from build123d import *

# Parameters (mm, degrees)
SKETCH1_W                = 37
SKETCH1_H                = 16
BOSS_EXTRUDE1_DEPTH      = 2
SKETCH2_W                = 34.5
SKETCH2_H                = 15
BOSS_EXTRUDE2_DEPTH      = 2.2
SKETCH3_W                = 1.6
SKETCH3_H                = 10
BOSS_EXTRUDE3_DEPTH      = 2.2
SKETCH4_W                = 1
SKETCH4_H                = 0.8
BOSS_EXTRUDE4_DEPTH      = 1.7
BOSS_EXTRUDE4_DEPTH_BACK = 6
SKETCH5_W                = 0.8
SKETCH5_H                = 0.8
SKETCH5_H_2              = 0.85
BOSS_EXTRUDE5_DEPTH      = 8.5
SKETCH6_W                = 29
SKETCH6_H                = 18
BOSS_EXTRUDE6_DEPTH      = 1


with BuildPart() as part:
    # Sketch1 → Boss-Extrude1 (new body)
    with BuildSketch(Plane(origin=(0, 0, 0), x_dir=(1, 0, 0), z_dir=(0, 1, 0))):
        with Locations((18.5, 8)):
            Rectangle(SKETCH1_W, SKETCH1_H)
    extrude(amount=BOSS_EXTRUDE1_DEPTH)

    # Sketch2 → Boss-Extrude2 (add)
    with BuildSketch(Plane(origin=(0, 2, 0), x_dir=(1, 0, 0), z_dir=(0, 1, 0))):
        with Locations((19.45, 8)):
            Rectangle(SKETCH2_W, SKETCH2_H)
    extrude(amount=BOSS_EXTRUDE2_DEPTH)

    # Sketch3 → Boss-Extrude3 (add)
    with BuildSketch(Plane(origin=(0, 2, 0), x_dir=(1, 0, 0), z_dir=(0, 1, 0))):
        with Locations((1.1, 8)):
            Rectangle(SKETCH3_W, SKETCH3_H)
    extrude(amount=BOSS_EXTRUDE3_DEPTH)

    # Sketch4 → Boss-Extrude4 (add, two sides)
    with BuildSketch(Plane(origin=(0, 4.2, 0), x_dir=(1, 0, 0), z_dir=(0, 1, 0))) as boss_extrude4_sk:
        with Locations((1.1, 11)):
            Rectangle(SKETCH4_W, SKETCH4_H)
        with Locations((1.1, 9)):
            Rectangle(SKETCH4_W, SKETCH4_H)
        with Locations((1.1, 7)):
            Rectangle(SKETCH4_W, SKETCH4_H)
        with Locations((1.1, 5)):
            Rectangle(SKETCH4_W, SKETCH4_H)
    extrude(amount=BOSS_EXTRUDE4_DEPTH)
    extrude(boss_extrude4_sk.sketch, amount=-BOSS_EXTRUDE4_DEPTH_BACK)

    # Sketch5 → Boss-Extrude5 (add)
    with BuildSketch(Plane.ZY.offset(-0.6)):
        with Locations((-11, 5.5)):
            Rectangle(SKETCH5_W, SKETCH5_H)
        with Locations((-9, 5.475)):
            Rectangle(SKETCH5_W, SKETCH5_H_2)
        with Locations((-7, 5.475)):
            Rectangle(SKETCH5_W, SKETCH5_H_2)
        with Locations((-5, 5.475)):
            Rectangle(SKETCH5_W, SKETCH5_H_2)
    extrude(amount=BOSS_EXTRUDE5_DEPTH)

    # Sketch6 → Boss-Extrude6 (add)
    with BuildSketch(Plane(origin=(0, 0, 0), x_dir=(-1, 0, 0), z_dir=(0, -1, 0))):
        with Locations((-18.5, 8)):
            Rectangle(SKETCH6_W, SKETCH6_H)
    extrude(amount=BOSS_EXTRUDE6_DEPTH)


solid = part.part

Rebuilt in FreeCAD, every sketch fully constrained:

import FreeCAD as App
import Part
import Sketcher


def add_polygon(sketch, points):
    """Adds a closed chain of lines whose ends are joined by coincident constraints."""
    first, n = sketch.GeometryCount, len(points)
    for a, b in zip(points, points[1:] + points[:1]):
        sketch.addGeometry(Part.LineSegment(App.Vector(*a, 0), App.Vector(*b, 0)), False)
    for i in range(n):
        sketch.addConstraint(Sketcher.Constraint("Coincident", first + i, 2, first + (i + 1) % n, 1))

doc = App.newDocument("Part")
body = doc.addObject("PartDesign::Body", "Body")

# Sketch on XZ plane
sketch1 = body.newObject("Sketcher::SketchObject", "Sketch")
sketch1.AttachmentSupport = (doc.getObject("XZ_Plane"), [""])
sketch1.MapMode = "FlatFace"
add_polygon(sketch1, [(0, -16), (0, 0), (37, 0), (37, -16)])  # lines 0-3
sketch1.addConstraint([
    Sketcher.Constraint("Vertical", 0),
    Sketcher.Constraint("Horizontal", 1),
    Sketcher.Constraint("Vertical", 2),
    Sketcher.Constraint("Horizontal", 3),
    Sketcher.Constraint("Coincident", 0, 2, -1, 1),
    Sketcher.Constraint("DistanceX", 1, 1, 1, 2, 37.0),
    Sketcher.Constraint("DistanceY", 0, 1, 0, 2, 16.0),
])
pad1 = body.newObject("PartDesign::Pad", "Pad")
pad1.Profile = sketch1
pad1.Length = 2
pad1.Reversed = True

# Sketch on XZ plane
sketch2 = body.newObject("Sketcher::SketchObject", "Sketch001")
sketch2.AttachmentSupport = (doc.getObject("XZ_Plane"), [""])
sketch2.MapMode = "FlatFace"
sketch2.AttachmentOffset = App.Placement(App.Vector(0, 0, -2), App.Rotation())
add_polygon(sketch2, [(2, -16), (2, 0), (37, 0), (37, -16)])  # lines 0-3
sketch2.addConstraint([
    Sketcher.Constraint("Vertical", 0),
    Sketcher.Constraint("Horizontal", 1),
    Sketcher.Constraint("Vertical", 2),
    Sketcher.Constraint("Horizontal", 3),
    Sketcher.Constraint("DistanceY", 0, 1, 0, 2, 15.0),
    Sketcher.Constraint("DistanceX", 1, 1, 1, 2, 34.5),
    Sketcher.Constraint("DistanceX", -1, 1, 0, 2, 2.2),
    Sketcher.Constraint("DistanceY", 0, 2, -1, 1, 0.5),
])
pad2 = body.newObject("PartDesign::Pad", "Pad001")
pad2.Profile = sketch2
pad2.Length = 2.2
pad2.Reversed = True

# Sketch on XZ plane
sketch3 = body.newObject("Sketcher::SketchObject", "Sketch002")
sketch3.AttachmentSupport = (doc.getObject("XZ_Plane"), [""])
sketch3.MapMode = "FlatFace"
sketch3.AttachmentOffset = App.Placement(App.Vector(0, 0, -2), App.Rotation())
add_polygon(sketch3, [(0.3, -13), (0.3, -3), (1.9, -3), (1.9, -13)])  # lines 0-3
sketch3.addConstraint([
    Sketcher.Constraint("Vertical", 0),
    Sketcher.Constraint("Horizontal", 1),
    Sketcher.Constraint("Vertical", 2),
    Sketcher.Constraint("Horizontal", 3),
    Sketcher.Constraint("DistanceY", 0, 1, 0, 2, 10.0),
    Sketcher.Constraint("DistanceX", 1, 1, 1, 2, 1.6),
    Sketcher.Constraint("DistanceY", 0, 2, -1, 1, 3.0),
    Sketcher.Constraint("DistanceX", -1, 1, 0, 2, 0.3),
])
pad3 = body.newObject("PartDesign::Pad", "Pad002")
pad3.Profile = sketch3
pad3.Length = 2.2
pad3.Reversed = True

# Sketch on XZ plane
sketch4 = body.newObject("Sketcher::SketchObject", "Sketch003")
sketch4.AttachmentSupport = (doc.getObject("XZ_Plane"), [""])
sketch4.MapMode = "FlatFace"
sketch4.AttachmentOffset = App.Placement(App.Vector(0, 0, -4.2), App.Rotation())
add_polygon(sketch4, [(0.6, -11.4), (0.6, -10.6), (1.6, -10.6), (1.6, -11.4)])  # lines 0-3
add_polygon(sketch4, [(0.6, -9.4), (0.6, -8.6), (1.6, -8.6), (1.6, -9.4)])  # lines 4-7
add_polygon(sketch4, [(0.6, -7.4), (0.6, -6.6), (1.6, -6.6), (1.6, -7.4)])  # lines 8-11
add_polygon(sketch4, [(0.6, -5.4), (0.6, -4.6), (1.6, -4.6), (1.6, -5.4)])  # lines 12-15
sketch4.addConstraint([
    Sketcher.Constraint("Vertical", 0),
    Sketcher.Constraint("Horizontal", 1),
    Sketcher.Constraint("Vertical", 2),
    Sketcher.Constraint("Horizontal", 3),
    Sketcher.Constraint("Vertical", 4),
    Sketcher.Constraint("Horizontal", 5),
    Sketcher.Constraint("Vertical", 6),
    Sketcher.Constraint("Horizontal", 7),
    Sketcher.Constraint("Vertical", 8),
    Sketcher.Constraint("Horizontal", 9),
    Sketcher.Constraint("Vertical", 10),
    Sketcher.Constraint("Horizontal", 11),
    Sketcher.Constraint("Vertical", 12),
    Sketcher.Constraint("Horizontal", 13),
    Sketcher.Constraint("Vertical", 14),
    Sketcher.Constraint("Horizontal", 15),
    Sketcher.Constraint("Vertical", 3, 2, 4, 2),
    Sketcher.Constraint("Vertical", 2, 2, 5, 2),
    Sketcher.Constraint("Vertical", 7, 2, 8, 2),
    Sketcher.Constraint("Vertical", 6, 2, 9, 2),
    Sketcher.Constraint("Vertical", 11, 2, 12, 2),
    Sketcher.Constraint("Vertical", 10, 2, 13, 2),
    Sketcher.Constraint("Equal", 2, 4),
    Sketcher.Constraint("Equal", 6, 8),
    Sketcher.Constraint("Equal", 10, 12),
    Sketcher.Constraint("DistanceX", 1, 1, 1, 2, 1.0),
    Sketcher.Constraint("DistanceY", 0, 1, 0, 2, 0.8),
    Sketcher.Constraint("DistanceY", 0, 2, 4, 2, 2.0),
    Sketcher.Constraint("DistanceY", 4, 2, 8, 2, 2.0),
    Sketcher.Constraint("DistanceY", 8, 2, 12, 2, 2.0),
    Sketcher.Constraint("DistanceX", -1, 1, 0, 2, 0.6),
    Sketcher.Constraint("DistanceY", 0, 2, -1, 1, 10.6),
])
pad4 = body.newObject("PartDesign::Pad", "Pad003")
pad4.Profile = sketch4
pad4.Type = "TwoLengths"
pad4.Length = 1.7
pad4.Length2 = 6
pad4.Reversed = True

# Sketch on YZ plane
sketch5 = body.newObject("Sketcher::SketchObject", "Sketch004")
sketch5.AttachmentSupport = (doc.getObject("YZ_Plane"), [""])
sketch5.MapMode = "FlatFace"
sketch5.AttachmentOffset = App.Placement(App.Vector(0, 0, 0.6), App.Rotation())
add_polygon(sketch5, [(5.9, -11.4), (5.1, -11.4), (5.1, -10.6), (5.9, -10.6)])  # lines 0-3
add_polygon(sketch5, [(5.9, -9.4), (5, -9.4), (5, -8.6), (5.9, -8.6)])  # lines 4-7
add_polygon(sketch5, [(5.9, -7.4), (5, -7.4), (5, -6.6), (5.9, -6.6)])  # lines 8-11
add_polygon(sketch5, [(5.9, -5.4), (5, -5.4), (5, -4.6), (5.9, -4.6)])  # lines 12-15
sketch5.addConstraint([
    Sketcher.Constraint("Horizontal", 0),
    Sketcher.Constraint("Vertical", 1),
    Sketcher.Constraint("Horizontal", 2),
    Sketcher.Constraint("Vertical", 3),
    Sketcher.Constraint("Horizontal", 4),
    Sketcher.Constraint("Vertical", 5),
    Sketcher.Constraint("Horizontal", 6),
    Sketcher.Constraint("Vertical", 7),
    Sketcher.Constraint("Horizontal", 8),
    Sketcher.Constraint("Vertical", 9),
    Sketcher.Constraint("Horizontal", 10),
    Sketcher.Constraint("Vertical", 11),
    Sketcher.Constraint("Horizontal", 12),
    Sketcher.Constraint("Vertical", 13),
    Sketcher.Constraint("Horizontal", 14),
    Sketcher.Constraint("Vertical", 15),
    Sketcher.Constraint("Vertical", 3, 2, 6, 2),
    Sketcher.Constraint("Vertical", 5, 2, 8, 2),
    Sketcher.Constraint("Vertical", 7, 2, 10, 2),
    Sketcher.Constraint("Vertical", 9, 2, 12, 2),
    Sketcher.Constraint("Vertical", 11, 2, 14, 2),
    Sketcher.Constraint("Equal", 2, 1),
    Sketcher.Constraint("Equal", 3, 5),
    Sketcher.Constraint("Equal", 7, 9),
    Sketcher.Constraint("Equal", 11, 13),
    Sketcher.Constraint("DistanceX", 0, 2, 0, 1, 0.8),
    Sketcher.Constraint("DistanceY", 0, 2, 4, 2, 2.0),
    Sketcher.Constraint("DistanceY", 4, 2, 8, 2, 2.0),
    Sketcher.Constraint("DistanceY", 8, 2, 12, 2, 2.0),
    Sketcher.Constraint("DistanceX", 4, 2, 4, 1, 0.85),
    Sketcher.Constraint("DistanceX", -1, 1, 0, 2, 5.1),
    Sketcher.Constraint("DistanceY", 0, 2, -1, 1, 11.4),
])
pad5 = body.newObject("PartDesign::Pad", "Pad004")
pad5.Profile = sketch5
pad5.Length = 8.5
pad5.Reversed = True

# Sketch on XZ plane
sketch6 = body.newObject("Sketcher::SketchObject", "Sketch005")
sketch6.AttachmentSupport = (doc.getObject("XZ_Plane"), [""])
sketch6.MapMode = "FlatFace"
add_polygon(sketch6, [(33, -17), (33, 1), (4, 1), (4, -17)])  # lines 0-3
sketch6.addConstraint([
    Sketcher.Constraint("Vertical", 0),
    Sketcher.Constraint("Horizontal", 1),
    Sketcher.Constraint("Vertical", 2),
    Sketcher.Constraint("Horizontal", 3),
    Sketcher.Constraint("DistanceX", 1, 2, 1, 1, 29.0),
    Sketcher.Constraint("DistanceY", 0, 1, 0, 2, 18.0),
    Sketcher.Constraint("DistanceX", -1, 1, 0, 2, 33.0),
    Sketcher.Constraint("DistanceY", -1, 1, 0, 2, 1.0),
])
pad6 = body.newObject("PartDesign::Pad", "Pad005")
pad6.Profile = sketch6
pad6.Length = 1

doc.recompute()
